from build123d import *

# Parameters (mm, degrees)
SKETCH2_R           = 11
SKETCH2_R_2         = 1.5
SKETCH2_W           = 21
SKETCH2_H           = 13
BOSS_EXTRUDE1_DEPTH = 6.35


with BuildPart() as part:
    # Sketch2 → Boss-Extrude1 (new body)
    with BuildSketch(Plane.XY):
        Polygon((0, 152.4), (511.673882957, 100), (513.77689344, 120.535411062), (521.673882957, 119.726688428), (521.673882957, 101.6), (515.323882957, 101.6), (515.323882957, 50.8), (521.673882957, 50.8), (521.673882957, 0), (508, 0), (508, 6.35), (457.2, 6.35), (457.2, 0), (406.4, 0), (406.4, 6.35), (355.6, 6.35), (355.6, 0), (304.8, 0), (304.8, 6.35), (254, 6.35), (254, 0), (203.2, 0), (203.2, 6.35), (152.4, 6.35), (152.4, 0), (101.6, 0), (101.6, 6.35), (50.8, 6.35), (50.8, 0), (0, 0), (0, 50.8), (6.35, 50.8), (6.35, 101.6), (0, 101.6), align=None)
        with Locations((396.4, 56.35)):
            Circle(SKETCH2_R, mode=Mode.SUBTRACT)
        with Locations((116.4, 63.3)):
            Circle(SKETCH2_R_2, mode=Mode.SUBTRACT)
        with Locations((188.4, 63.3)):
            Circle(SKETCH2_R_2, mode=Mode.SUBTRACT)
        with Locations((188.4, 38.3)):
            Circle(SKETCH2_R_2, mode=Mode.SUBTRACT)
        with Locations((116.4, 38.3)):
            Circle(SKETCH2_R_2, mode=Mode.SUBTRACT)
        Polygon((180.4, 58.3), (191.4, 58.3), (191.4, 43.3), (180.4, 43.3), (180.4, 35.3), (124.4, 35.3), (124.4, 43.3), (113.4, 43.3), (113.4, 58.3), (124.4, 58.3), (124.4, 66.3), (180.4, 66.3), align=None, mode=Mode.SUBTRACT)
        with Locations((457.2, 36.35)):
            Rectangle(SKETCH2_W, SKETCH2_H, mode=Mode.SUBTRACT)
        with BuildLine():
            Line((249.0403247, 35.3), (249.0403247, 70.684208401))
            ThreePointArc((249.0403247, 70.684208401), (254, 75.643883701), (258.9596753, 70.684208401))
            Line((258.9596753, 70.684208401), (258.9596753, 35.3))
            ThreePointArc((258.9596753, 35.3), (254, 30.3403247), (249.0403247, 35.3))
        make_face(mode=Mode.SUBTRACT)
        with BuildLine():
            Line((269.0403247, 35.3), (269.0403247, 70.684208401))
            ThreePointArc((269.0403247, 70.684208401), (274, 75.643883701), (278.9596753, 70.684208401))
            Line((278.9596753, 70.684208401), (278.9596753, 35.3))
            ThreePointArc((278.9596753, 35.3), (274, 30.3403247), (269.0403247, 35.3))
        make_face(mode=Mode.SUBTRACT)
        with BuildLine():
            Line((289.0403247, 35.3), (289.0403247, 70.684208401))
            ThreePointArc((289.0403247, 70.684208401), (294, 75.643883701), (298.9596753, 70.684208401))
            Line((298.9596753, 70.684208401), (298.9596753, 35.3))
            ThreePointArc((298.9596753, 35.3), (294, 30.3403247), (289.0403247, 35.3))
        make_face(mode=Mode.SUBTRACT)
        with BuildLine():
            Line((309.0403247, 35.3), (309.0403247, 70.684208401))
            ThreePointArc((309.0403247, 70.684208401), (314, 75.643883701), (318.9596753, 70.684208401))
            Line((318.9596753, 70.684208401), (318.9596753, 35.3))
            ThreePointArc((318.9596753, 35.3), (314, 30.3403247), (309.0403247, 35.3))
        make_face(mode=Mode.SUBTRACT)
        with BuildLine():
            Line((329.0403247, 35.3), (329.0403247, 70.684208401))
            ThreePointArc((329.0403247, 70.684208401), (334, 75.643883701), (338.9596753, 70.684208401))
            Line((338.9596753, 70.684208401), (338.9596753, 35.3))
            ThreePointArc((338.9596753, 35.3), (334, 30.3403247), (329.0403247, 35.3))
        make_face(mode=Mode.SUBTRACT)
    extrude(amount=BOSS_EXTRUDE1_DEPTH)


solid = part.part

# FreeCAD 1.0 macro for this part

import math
import FreeCAD as App
import Part
import Sketcher

V = App.Vector
Q = App.Units.Quantity

doc = App.newDocument("Part")
body = doc.addObject("PartDesign::Body", "Body")

# Sketch on XY plane
sketch1 = body.newObject("Sketcher::SketchObject", "Sketch")
sketch1.AttachmentSupport = (doc.getObject("XY_Plane"), [""])
sketch1.MapMode = "FlatFace"
sketch1.addGeometry([
    Part.LineSegment(V(511.673883, 100, 0), V(0, 152.4, 0)),  # 0
    Part.LineSegment(V(0, 152.4, 0), V(0, 101.6, 0)),  # 1
    Part.LineSegment(V(0, 101.6, 0), V(6.35, 101.6, 0)),  # 2
    Part.LineSegment(V(6.35, 101.6, 0), V(6.35, 50.8, 0)),  # 3
    Part.LineSegment(V(6.35, 50.8, 0), V(0, 50.8, 0)),  # 4
    Part.LineSegment(V(0, 50.8, 0), V(0, 0, 0)),  # 5
    Part.LineSegment(V(0, 0, 0), V(50.8, 0, 0)),  # 6
    Part.LineSegment(V(50.8, 0, 0), V(50.8, 6.35, 0)),  # 7
    Part.LineSegment(V(50.8, 6.35, 0), V(101.6, 6.35, 0)),  # 8
    Part.LineSegment(V(101.6, 6.35, 0), V(101.6, 0, 0)),  # 9
    Part.LineSegment(V(101.6, 0, 0), V(152.4, 0, 0)),  # 10
    Part.LineSegment(V(152.4, 0, 0), V(152.4, 6.35, 0)),  # 11
    Part.LineSegment(V(152.4, 6.35, 0), V(203.2, 6.35, 0)),  # 12
    Part.LineSegment(V(203.2, 6.35, 0), V(203.2, 0, 0)),  # 13
    Part.LineSegment(V(203.2, 0, 0), V(254, 0, 0)),  # 14
    Part.LineSegment(V(254, 0, 0), V(254, 6.35, 0)),  # 15
    Part.LineSegment(V(254, 6.35, 0), V(304.8, 6.35, 0)),  # 16
    Part.LineSegment(V(304.8, 6.35, 0), V(304.8, 0, 0)),  # 17
    Part.LineSegment(V(304.8, 0, 0), V(355.6, 0, 0)),  # 18
    Part.LineSegment(V(355.6, 0, 0), V(355.6, 6.35, 0)),  # 19
    Part.LineSegment(V(355.6, 6.35, 0), V(406.4, 6.35, 0)),  # 20
    Part.LineSegment(V(406.4, 6.35, 0), V(406.4, 0, 0)),  # 21
    Part.LineSegment(V(406.4, 0, 0), V(457.2, 0, 0)),  # 22
    Part.LineSegment(V(457.2, 0, 0), V(457.2, 6.35, 0)),  # 23
    Part.LineSegment(V(457.2, 6.35, 0), V(508, 6.35, 0)),  # 24
    Part.LineSegment(V(508, 6.35, 0), V(508, 0, 0)),  # 25
    Part.LineSegment(V(508, 0, 0), V(521.673883, 0, 0)),  # 26
    Part.LineSegment(V(521.673883, 0, 0), V(521.673883, 50.8, 0)),  # 27
    Part.LineSegment(V(521.673883, 50.8, 0), V(515.323883, 50.8, 0)),  # 28
    Part.LineSegment(V(515.323883, 50.8, 0), V(515.323883, 101.6, 0)),  # 29
    Part.LineSegment(V(515.323883, 101.6, 0), V(521.673883, 101.6, 0)),  # 30
    Part.LineSegment(V(521.673883, 101.6, 0), V(521.673883, 119.726688, 0)),  # 31
    Part.LineSegment(V(521.673883, 119.726688, 0), V(513.776893, 120.535411, 0)),  # 32
    Part.LineSegment(V(513.776893, 120.535411, 0), V(511.673883, 100, 0)),  # 33
    Part.LineSegment(V(446.7, 29.85, 0), V(446.7, 42.85, 0)),  # 34
    Part.LineSegment(V(446.7, 42.85, 0), V(467.7, 42.85, 0)),  # 35
    Part.LineSegment(V(467.7, 42.85, 0), V(467.7, 29.85, 0)),  # 36
    Part.LineSegment(V(467.7, 29.85, 0), V(446.7, 29.85, 0)),  # 37
    Part.Circle(V(188.4, 38.3, 0), V(0, 0, 1), 1.5),  # 38
    Part.Circle(V(116.4, 38.3, 0), V(0, 0, 1), 1.5),  # 39
    Part.LineSegment(V(180.4, 58.3, 0), V(191.4, 58.3, 0)),  # 40
    Part.LineSegment(V(191.4, 58.3, 0), V(191.4, 43.3, 0)),  # 41
    Part.LineSegment(V(191.4, 43.3, 0), V(180.4, 43.3, 0)),  # 42
    Part.LineSegment(V(180.4, 43.3, 0), V(180.4, 35.3, 0)),  # 43
    Part.LineSegment(V(180.4, 35.3, 0), V(124.4, 35.3, 0)),  # 44
    Part.LineSegment(V(124.4, 35.3, 0), V(124.4, 43.3, 0)),  # 45
    Part.LineSegment(V(124.4, 43.3, 0), V(113.4, 43.3, 0)),  # 46
    Part.LineSegment(V(113.4, 43.3, 0), V(113.4, 58.3, 0)),  # 47
    Part.LineSegment(V(113.4, 58.3, 0), V(124.4, 58.3, 0)),  # 48
    Part.LineSegment(V(124.4, 58.3, 0), V(124.4, 66.3, 0)),  # 49
    Part.LineSegment(V(124.4, 66.3, 0), V(180.4, 66.3, 0)),  # 50
    Part.LineSegment(V(180.4, 66.3, 0), V(180.4, 58.3, 0)),  # 51
    Part.Circle(V(396.4, 56.35, 0), V(0, 0, 1), 11),  # 52
    Part.LineSegment(V(329.040325, 35.3, 0), V(329.040325, 70.684208, 0)),  # 53
    Part.ArcOfCircle(Part.Circle(V(334, 70.684208, 0), V(0, 0, 1), 4.959675), math.radians(0), math.radians(180)),  # 54
    Part.LineSegment(V(338.959675, 70.684208, 0), V(338.959675, 35.3, 0)),  # 55
    Part.ArcOfCircle(Part.Circle(V(334, 35.3, 0), V(0, 0, 1), 4.959675), math.radians(180), math.radians(360)),  # 56
    Part.LineSegment(V(309.040325, 35.3, 0), V(309.040325, 70.684208, 0)),  # 57
    Part.ArcOfCircle(Part.Circle(V(314, 70.684208, 0), V(0, 0, 1), 4.959675), math.radians(0), math.radians(180)),  # 58
    Part.LineSegment(V(318.959675, 70.684208, 0), V(318.959675, 35.3, 0)),  # 59
    Part.ArcOfCircle(Part.Circle(V(314, 35.3, 0), V(0, 0, 1), 4.959675), math.radians(180), math.radians(360)),  # 60
    Part.LineSegment(V(289.040325, 35.3, 0), V(289.040325, 70.684208, 0)),  # 61
    Part.ArcOfCircle(Part.Circle(V(294, 70.684208, 0), V(0, 0, 1), 4.959675), math.radians(0), math.radians(180)),  # 62
    Part.LineSegment(V(298.959675, 70.684208, 0), V(298.959675, 35.3, 0)),  # 63
    Part.ArcOfCircle(Part.Circle(V(294, 35.3, 0), V(0, 0, 1), 4.959675), math.radians(180), math.radians(360)),  # 64
    Part.LineSegment(V(269.040325, 35.3, 0), V(269.040325, 70.684208, 0)),  # 65
    Part.ArcOfCircle(Part.Circle(V(274, 70.684208, 0), V(0, 0, 1), 4.959675), math.radians(0), math.radians(180)),  # 66
    Part.LineSegment(V(278.959675, 70.684208, 0), V(278.959675, 35.3, 0)),  # 67
    Part.ArcOfCircle(Part.Circle(V(274, 35.3, 0), V(0, 0, 1), 4.959675), math.radians(180), math.radians(360)),  # 68
    Part.LineSegment(V(249.040325, 35.3, 0), V(249.040325, 70.684208, 0)),  # 69
    Part.ArcOfCircle(Part.Circle(V(254, 70.684208, 0), V(0, 0, 1), 4.959675), math.radians(0), math.radians(180)),  # 70
    Part.LineSegment(V(258.959675, 70.684208, 0), V(258.959675, 35.3, 0)),  # 71
    Part.ArcOfCircle(Part.Circle(V(254, 35.3, 0), V(0, 0, 1), 4.959675), math.radians(180), math.radians(360)),  # 72
    Part.Circle(V(188.4, 63.3, 0), V(0, 0, 1), 1.5),  # 73
    Part.Circle(V(116.4, 63.3, 0), V(0, 0, 1), 1.5),  # 74
], False)
sketch1.addConstraint([
    Sketcher.Constraint("Coincident", 0, 2, 1, 1),
    Sketcher.Constraint("Coincident", 1, 2, 2, 1),
    Sketcher.Constraint("Coincident", 2, 2, 3, 1),
    Sketcher.Constraint("Coincident", 3, 2, 4, 1),
    Sketcher.Constraint("Coincident", 4, 2, 5, 1),
    Sketcher.Constraint("Coincident", 5, 2, 6, 1),
    Sketcher.Constraint("Coincident", 6, 2, 7, 1),
    Sketcher.Constraint("Coincident", 7, 2, 8, 1),
    Sketcher.Constraint("Coincident", 8, 2, 9, 1),
    Sketcher.Constraint("Coincident", 9, 2, 10, 1),
    Sketcher.Constraint("Coincident", 10, 2, 11, 1),
    Sketcher.Constraint("Coincident", 11, 2, 12, 1),
    Sketcher.Constraint("Coincident", 12, 2, 13, 1),
    Sketcher.Constraint("Coincident", 13, 2, 14, 1),
    Sketcher.Constraint("Coincident", 14, 2, 15, 1),
    Sketcher.Constraint("Coincident", 15, 2, 16, 1),
    Sketcher.Constraint("Coincident", 16, 2, 17, 1),
    Sketcher.Constraint("Coincident", 17, 2, 18, 1),
    Sketcher.Constraint("Coincident", 18, 2, 19, 1),
    Sketcher.Constraint("Coincident", 19, 2, 20, 1),
    Sketcher.Constraint("Coincident", 20, 2, 21, 1),
    Sketcher.Constraint("Coincident", 21, 2, 22, 1),
    Sketcher.Constraint("Coincident", 22, 2, 23, 1),
    Sketcher.Constraint("Coincident", 23, 2, 24, 1),
    Sketcher.Constraint("Coincident", 24, 2, 25, 1),
    Sketcher.Constraint("Coincident", 25, 2, 26, 1),
    Sketcher.Constraint("Coincident", 26, 2, 27, 1),
    Sketcher.Constraint("Coincident", 27, 2, 28, 1),
    Sketcher.Constraint("Coincident", 28, 2, 29, 1),
    Sketcher.Constraint("Coincident", 29, 2, 30, 1),
    Sketcher.Constraint("Coincident", 30, 2, 31, 1),
    Sketcher.Constraint("Coincident", 31, 2, 32, 1),
    Sketcher.Constraint("Coincident", 32, 2, 33, 1),
    Sketcher.Constraint("Coincident", 33, 2, 0, 1),
    Sketcher.Constraint("Coincident", 34, 2, 35, 1),
    Sketcher.Constraint("Coincident", 35, 2, 36, 1),
    Sketcher.Constraint("Coincident", 36, 2, 37, 1),
    Sketcher.Constraint("Coincident", 37, 2, 34, 1),
    Sketcher.Constraint("Coincident", 40, 2, 41, 1),
    Sketcher.Constraint("Coincident", 41, 2, 42, 1),
    Sketcher.Constraint("Coincident", 42, 2, 43, 1),
    Sketcher.Constraint("Coincident", 43, 2, 44, 1),
    Sketcher.Constraint("Coincident", 44, 2, 45, 1),
    Sketcher.Constraint("Coincident", 45, 2, 46, 1),
    Sketcher.Constraint("Coincident", 46, 2, 47, 1),
    Sketcher.Constraint("Coincident", 47, 2, 48, 1),
    Sketcher.Constraint("Coincident", 48, 2, 49, 1),
    Sketcher.Constraint("Coincident", 49, 2, 50, 1),
    Sketcher.Constraint("Coincident", 50, 2, 51, 1),
    Sketcher.Constraint("Coincident", 51, 2, 40, 1),
    Sketcher.Constraint("Tangent", 53, 2, 54, 2),
    Sketcher.Constraint("Tangent", 54, 1, 55, 1),
    Sketcher.Constraint("Tangent", 55, 2, 56, 2),
    Sketcher.Constraint("Tangent", 56, 1, 53, 1),
    Sketcher.Constraint("Tangent", 57, 2, 58, 2),
    Sketcher.Constraint("Tangent", 58, 1, 59, 1),
    Sketcher.Constraint("Tangent", 59, 2, 60, 2),
    Sketcher.Constraint("Tangent", 60, 1, 57, 1),
    Sketcher.Constraint("Tangent", 61, 2, 62, 2),
    Sketcher.Constraint("Tangent", 62, 1, 63, 1),
    Sketcher.Constraint("Tangent", 63, 2, 64, 2),
    Sketcher.Constraint("Tangent", 64, 1, 61, 1),
    Sketcher.Constraint("Tangent", 65, 2, 66, 2),
    Sketcher.Constraint("Tangent", 66, 1, 67, 1),
    Sketcher.Constraint("Tangent", 67, 2, 68, 2),
    Sketcher.Constraint("Tangent", 68, 1, 65, 1),
    Sketcher.Constraint("Tangent", 69, 2, 70, 2),
    Sketcher.Constraint("Tangent", 70, 1, 71, 1),
    Sketcher.Constraint("Tangent", 71, 2, 72, 2),
    Sketcher.Constraint("Tangent", 72, 1, 69, 1),
    Sketcher.Constraint("Vertical", 1),
    Sketcher.Constraint("Horizontal", 2),
    Sketcher.Constraint("Vertical", 3),
    Sketcher.Constraint("Horizontal", 4),
    Sketcher.Constraint("Vertical", 5),
    Sketcher.Constraint("Horizontal", 6),
    Sketcher.Constraint("Vertical", 7),
    Sketcher.Constraint("Horizontal", 8),
    Sketcher.Constraint("Vertical", 9),
    Sketcher.Constraint("Horizontal", 10),
    Sketcher.Constraint("Vertical", 11),
    Sketcher.Constraint("Horizontal", 12),
    Sketcher.Constraint("Vertical", 13),
    Sketcher.Constraint("Horizontal", 14),
    Sketcher.Constraint("Vertical", 15),
    Sketcher.Constraint("Horizontal", 16),
    Sketcher.Constraint("Vertical", 17),
    Sketcher.Constraint("Horizontal", 18),
    Sketcher.Constraint("Vertical", 19),
    Sketcher.Constraint("Horizontal", 20),
    Sketcher.Constraint("Vertical", 21),
    Sketcher.Constraint("Horizontal", 22),
    Sketcher.Constraint("Vertical", 23),
    Sketcher.Constraint("Horizontal", 24),
    Sketcher.Constraint("Vertical", 25),
    Sketcher.Constraint("Horizontal", 26),
    Sketcher.Constraint("Vertical", 27),
    Sketcher.Constraint("Horizontal", 28),
    Sketcher.Constraint("Vertical", 29),
    Sketcher.Constraint("Horizontal", 30),
    Sketcher.Constraint("Vertical", 31),
    Sketcher.Constraint("Vertical", 34),
    Sketcher.Constraint("Horizontal", 35),
    Sketcher.Constraint("Vertical", 36),
    Sketcher.Constraint("Horizontal", 37),
    Sketcher.Constraint("Horizontal", 40),
    Sketcher.Constraint("Vertical", 41),
    Sketcher.Constraint("Horizontal", 42),
    Sketcher.Constraint("Vertical", 43),
    Sketcher.Constraint("Horizontal", 44),
    Sketcher.Constraint("Vertical", 45),
    Sketcher.Constraint("Horizontal", 46),
    Sketcher.Constraint("Vertical", 47),
    Sketcher.Constraint("Horizontal", 48),
    Sketcher.Constraint("Vertical", 49),
    Sketcher.Constraint("Horizontal", 50),
    Sketcher.Constraint("Vertical", 51),
    Sketcher.Constraint("Vertical", 53),
    Sketcher.Constraint("Vertical", 55),
    Sketcher.Constraint("Vertical", 57),
    Sketcher.Constraint("Vertical", 59),
    Sketcher.Constraint("Vertical", 61),
    Sketcher.Constraint("Vertical", 63),
    Sketcher.Constraint("Vertical", 65),
    Sketcher.Constraint("Vertical", 67),
    Sketcher.Constraint("Vertical", 69),
    Sketcher.Constraint("Vertical", 71),
    Sketcher.Constraint("Coincident", 5, 2, -1, 1),
    Sketcher.Constraint("Equal", 38, 39),
    Sketcher.Constraint("Equal", 56, 58),
    Sketcher.Constraint("Equal", 60, 62),
    Sketcher.Constraint("Equal", 64, 66),
    Sketcher.Constraint("Equal", 68, 70),
    Sketcher.Constraint("Equal", 39, 73),
    Sketcher.Constraint("Equal", 73, 74),
    Sketcher.Constraint("PointOnObject", 0, 2, -2),
    Sketcher.Constraint("PointOnObject", 9, 2, -1),
    Sketcher.Constraint("PointOnObject", 13, 2, -1),
    Sketcher.Constraint("PointOnObject", 17, 2, -1),
    Sketcher.Constraint("PointOnObject", 21, 2, -1),
    Sketcher.Constraint("PointOnObject", 25, 2, -1),
    Sketcher.Constraint("Parallel", 0, 32),
    Sketcher.Constraint("Perpendicular", 32, 33),
    Sketcher.Constraint("Horizontal", 38, 3, 39, 3),
    Sketcher.Constraint("Horizontal", 54, 3, 58, 3),
    Sketcher.Constraint("Horizontal", 56, 3, 60, 3),
    Sketcher.Constraint("Horizontal", 58, 3, 62, 3),
    Sketcher.Constraint("Horizontal", 60, 3, 64, 3),
    Sketcher.Constraint("Horizontal", 62, 3, 66, 3),
    Sketcher.Constraint("Horizontal", 64, 3, 68, 3),
    Sketcher.Constraint("Horizontal", 66, 3, 70, 3),
    Sketcher.Constraint("Horizontal", 68, 3, 72, 3),
    Sketcher.Constraint("Horizontal", 73, 3, 74, 3),
    Sketcher.Constraint("Horizontal", 8, 2, 11, 2),
    Sketcher.Constraint("Horizontal", 12, 2, 15, 2),
    Sketcher.Constraint("Horizontal", 16, 2, 19, 2),
    Sketcher.Constraint("Horizontal", 20, 2, 23, 2),
    Sketcher.Constraint("Horizontal", 4, 2, 27, 2),
    Sketcher.Constraint("Horizontal", 2, 2, 29, 2),
    Sketcher.Constraint("Horizontal", 72, 3, 43, 2),
    Sketcher.Constraint("Horizontal", 42, 2, 45, 2),
    Sketcher.Constraint("Horizontal", 40, 2, 47, 2),
    Sketcher.Constraint("Vertical", 38, 3, 73, 3),
    Sketcher.Constraint("Vertical", 39, 3, 74, 3),
    Sketcher.Constraint("Vertical", 72, 3, 14, 2),
    Sketcher.Constraint("Vertical", 27, 2, 30, 2),
    Sketcher.Constraint("Vertical", 45, 2, 48, 2),
    Sketcher.Constraint("Vertical", 43, 2, 50, 2),
    Sketcher.Constraint("Equal", 6, 8),
    Sketcher.Constraint("Equal", 8, 10),
    Sketcher.Constraint("Equal", 10, 12),
    Sketcher.Constraint("Equal", 12, 14),
    Sketcher.Constraint("Equal", 14, 16),
    Sketcher.Constraint("Equal", 16, 18),
    Sketcher.Constraint("Equal", 18, 20),
    Sketcher.Constraint("Equal", 20, 22),
    Sketcher.Constraint("Equal", 22, 24),
    Sketcher.Constraint("Equal", 4, 28),
    Sketcher.Constraint("Equal", 42, 46),
    Sketcher.Constraint("Equal", 24, 1),
    Sketcher.Constraint("Equal", 1, 3),
    Sketcher.Constraint("Equal", 3, 5),
    Sketcher.Constraint("Equal", 30, 7),
    Sketcher.Constraint("Equal", 45, 49),
    Sketcher.Constraint("Diameter", 38, Q("3 mm")),
    Sketcher.Constraint("Diameter", 52, Q("22 mm")),
    Sketcher.Constraint("DistanceX", 35, 1, 35, 2, Q("21 mm")),
    Sketcher.Constraint("DistanceX", 40, 1, 40, 2, Q("11 mm")),
    Sketcher.Constraint("DistanceX", 44, 2, 44, 1, Q("56 mm")),
    Sketcher.Constraint("DistanceY", 34, 1, 34, 2, Q("13 mm")),
    Sketcher.Constraint("DistanceY", 41, 2, 41, 1, Q("15 mm")),
    Sketcher.Constraint("DistanceY", 43, 2, 43, 1, Q("8 mm")),
    Sketcher.Constraint("DistanceX", 6, 1, 6, 2, Q("50.8 mm")),
    Sketcher.Constraint("DistanceX", -1, 1, 54, 3, Q("334 mm")),
    Sketcher.Constraint("DistanceX", -1, 1, 58, 3, Q("314 mm")),
    Sketcher.Constraint("DistanceX", -1, 1, 62, 3, Q("294 mm")),
    Sketcher.Constraint("DistanceX", -1, 1, 66, 3, Q("274 mm")),
    Sketcher.Constraint("DistanceY", -1, 1, 33, 2, Q("100 mm")),
    Sketcher.Constraint("DistanceX", 2, 1, 2, 2, Q("6.35 mm")),
    Sketcher.Constraint("DistanceX", -1, 1, 38, 3, Q("188.4 mm")),
    Sketcher.Constraint("DistanceY", -1, 1, 38, 3, Q("38.3 mm")),
    Sketcher.Constraint("DistanceX", -1, 1, 39, 3, Q("116.4 mm")),
    Sketcher.Constraint("DistanceX", -1, 1, 52, 3, Q("396.4 mm")),
    Sketcher.Constraint("DistanceY", -1, 1, 56, 3, Q("35.3 mm")),
    Sketcher.Constraint("DistanceY", -1, 1, 73, 3, Q("63.3 mm")),
    Sketcher.Constraint("DistanceX", -1, 1, 34, 2, Q("446.7 mm")),
    Sketcher.Constraint("DistanceX", -1, 1, 40, 2, Q("191.4 mm")),
    Sketcher.Constraint("Distance", 0, Q("514.35 mm")),
    Sketcher.Constraint("DistanceY", -1, 1, 52, 3, Q("56.35 mm")),
    Sketcher.Constraint("DistanceY", -1, 1, 34, 2, Q("42.85 mm")),
    Sketcher.Constraint("Radius", 54, Q("4.959675 mm")),
    Sketcher.Constraint("DistanceY", 31, 1, 31, 2, Q("18.126688 mm")),
    Sketcher.Constraint("DistanceY", 53, 1, 53, 2, Q("35.384208 mm")),
    Sketcher.Constraint("Distance", 32, Q("7.938292 mm")),
])
pad1 = body.newObject("PartDesign::Pad", "Pad")
pad1.Profile = sketch1
pad1.Length = 6.35

doc.recompute()
